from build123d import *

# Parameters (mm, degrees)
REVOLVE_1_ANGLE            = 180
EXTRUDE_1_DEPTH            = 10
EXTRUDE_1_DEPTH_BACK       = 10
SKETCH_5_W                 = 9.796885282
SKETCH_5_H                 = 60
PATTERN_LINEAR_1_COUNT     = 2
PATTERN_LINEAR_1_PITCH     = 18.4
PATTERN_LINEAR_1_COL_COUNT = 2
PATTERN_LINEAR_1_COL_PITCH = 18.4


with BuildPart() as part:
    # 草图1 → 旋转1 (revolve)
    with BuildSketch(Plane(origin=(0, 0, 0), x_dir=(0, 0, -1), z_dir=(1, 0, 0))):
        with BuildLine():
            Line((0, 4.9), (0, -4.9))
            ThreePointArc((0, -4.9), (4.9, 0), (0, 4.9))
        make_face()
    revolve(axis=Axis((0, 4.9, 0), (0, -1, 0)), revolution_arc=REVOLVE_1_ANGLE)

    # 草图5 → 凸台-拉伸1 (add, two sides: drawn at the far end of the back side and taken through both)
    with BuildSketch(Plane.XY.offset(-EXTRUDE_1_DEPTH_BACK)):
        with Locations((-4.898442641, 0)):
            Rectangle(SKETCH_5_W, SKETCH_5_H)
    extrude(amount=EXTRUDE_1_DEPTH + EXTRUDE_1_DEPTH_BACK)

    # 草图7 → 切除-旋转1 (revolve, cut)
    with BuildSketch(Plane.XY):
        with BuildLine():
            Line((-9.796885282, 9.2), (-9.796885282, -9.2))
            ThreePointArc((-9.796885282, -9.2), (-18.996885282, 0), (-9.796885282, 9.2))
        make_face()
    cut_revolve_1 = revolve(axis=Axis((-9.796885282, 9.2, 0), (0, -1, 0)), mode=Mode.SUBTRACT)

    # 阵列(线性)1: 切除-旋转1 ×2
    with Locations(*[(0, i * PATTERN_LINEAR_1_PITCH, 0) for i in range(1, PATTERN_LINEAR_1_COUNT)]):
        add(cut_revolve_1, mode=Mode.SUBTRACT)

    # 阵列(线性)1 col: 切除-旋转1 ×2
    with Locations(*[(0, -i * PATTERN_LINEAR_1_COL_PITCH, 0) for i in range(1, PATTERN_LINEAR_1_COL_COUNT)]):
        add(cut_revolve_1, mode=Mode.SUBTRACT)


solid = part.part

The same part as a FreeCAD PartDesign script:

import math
import FreeCAD as App
import Part
import Sketcher

V = App.Vector


def add_polygon(sketch, points):
    """Adds a closed chain of lines whose ends are joined by coincident constraints."""
    first, n = sketch.GeometryCount, len(points)
    for a, b in zip(points, points[1:] + points[:1]):
        sketch.addGeometry(Part.LineSegment(App.Vector(*a, 0), App.Vector(*b, 0)), False)
    for i in range(n):
        sketch.addConstraint(Sketcher.Constraint("Coincident", first + i, 2, first + (i + 1) % n, 1))

doc = App.newDocument("Part")
body = doc.addObject("PartDesign::Body", "Body")

# Sketch on YZ plane
sketch1 = doc.addObject("Sketcher::SketchObject", "Sketch")
body.addObject(sketch1)
sketch1.AttachmentSupport = (doc.YZ_Plane, [""])
sketch1.MapMode = "FlatFace"
sketch1.addGeometry([
    Part.LineSegment(V(4.9, 0, 0), V(-4.9, 0, 0)),
    Part.ArcOfCircle(Part.Circle(V(0, 0, 0), V(0, 0, 1), 4.9), math.radians(180), math.radians(360)),
], False)
sketch1.addConstraint([
    Sketcher.Constraint("Coincident", 0, 1, 1, 2),
    Sketcher.Constraint("Coincident", 1, 1, 0, 2),
    Sketcher.Constraint("Horizontal", 0),
    Sketcher.Constraint("Coincident", 1, 3, -1, 1),
    Sketcher.Constraint("PointOnObject", 0, 1, -1),
    Sketcher.Constraint("Radius", 1, 4.9),
])
revolution = doc.addObject("PartDesign::Revolution", "Revolution")
body.addObject(revolution)
revolution.Profile = sketch1
revolution.ReferenceAxis = (sketch1, ["H_Axis"])
revolution.Angle = 180
revolution.Reversed = True

# Sketch on XY plane
sketch2 = doc.addObject("Sketcher::SketchObject", "Sketch001")
body.addObject(sketch2)
sketch2.AttachmentSupport = (doc.XY_Plane, [""])
sketch2.MapMode = "FlatFace"
add_polygon(sketch2, [(-10, 30), (-10, -30), (0, -30), (0, 30)])  # lines 0-3
sketch2.addConstraint([
    Sketcher.Constraint("Vertical", 0),
    Sketcher.Constraint("Horizontal", 1),
    Sketcher.Constraint("Vertical", 2),
    Sketcher.Constraint("Horizontal", 3),
    Sketcher.Constraint("Symmetric", 1, 2, 2, 2, -1, 1),
    Sketcher.Constraint("DistanceY", 0, 2, 0, 1, 60.0),
    Sketcher.Constraint("DistanceX", 1, 1, 1, 2, 9.796885),
])
pad1 = doc.addObject("PartDesign::Pad", "Pad")
body.addObject(pad1)
pad1.Profile = sketch2
pad1.Type = "TwoLengths"
pad1.Length = 10
pad1.Length2 = 10

# Sketch on XY plane
sketch3 = doc.addObject("Sketcher::SketchObject", "Sketch002")
body.addObject(sketch3)
sketch3.AttachmentSupport = (doc.XY_Plane, [""])
sketch3.MapMode = "FlatFace"
sketch3.addGeometry([
    Part.LineSegment(V(-10, -9, 0), V(-10, 9, 0)),
    Part.ArcOfCircle(Part.Circle(V(-10, 0, 0), V(0, 0, 1), 9), math.radians(90), math.radians(270)),
], False)
sketch3.addGeometry(Part.LineSegment(V(-10, 9, 0), V(-10, -9, 0)), True)  # axis
sketch3.addConstraint([
    Sketcher.Constraint("Coincident", 0, 1, 1, 2),
    Sketcher.Constraint("Coincident", 1, 1, 0, 2),
    Sketcher.Constraint("Vertical", 0),
    Sketcher.Constraint("Vertical", 2),
    Sketcher.Constraint("Coincident", 2, 1, 1, 1),
    Sketcher.Constraint("PointOnObject", 1, 3, -1),
    Sketcher.Constraint("Vertical", 1, 3, 0, 1),
    Sketcher.Constraint("Equal", 0, 2),
    Sketcher.Constraint("Radius", 1, 9.2),
    Sketcher.Constraint("DistanceX", 1, 3, -1, 1, 9.796885),
])
groove = doc.addObject("PartDesign::Groove", "Groove")
body.addObject(groove)
groove.Profile = sketch3
groove.ReferenceAxis = (sketch3, ["Axis0"])
groove.Angle = 360
doc.recompute()

linearpattern = doc.addObject("PartDesign::LinearPattern", "LinearPattern")
body.addObject(linearpattern)
linearpattern.Originals = [groove]
linearpattern.Direction = (doc.Y_Axis, [""])
linearpattern.Mode = "offset"
linearpattern.Offset = 18.4
linearpattern.Occurrences = 2
body.Tip = linearpattern
doc.recompute()

linearpattern2 = doc.addObject("PartDesign::LinearPattern", "LinearPattern001")
body.addObject(linearpattern2)
linearpattern2.Originals = [groove]
linearpattern2.Direction = (doc.Y_Axis, [""])
linearpattern2.Mode = "offset"
linearpattern2.Offset = 18.4
linearpattern2.Occurrences = 2
linearpattern2.Reversed = True
body.Tip = linearpattern2

doc.recompute()
